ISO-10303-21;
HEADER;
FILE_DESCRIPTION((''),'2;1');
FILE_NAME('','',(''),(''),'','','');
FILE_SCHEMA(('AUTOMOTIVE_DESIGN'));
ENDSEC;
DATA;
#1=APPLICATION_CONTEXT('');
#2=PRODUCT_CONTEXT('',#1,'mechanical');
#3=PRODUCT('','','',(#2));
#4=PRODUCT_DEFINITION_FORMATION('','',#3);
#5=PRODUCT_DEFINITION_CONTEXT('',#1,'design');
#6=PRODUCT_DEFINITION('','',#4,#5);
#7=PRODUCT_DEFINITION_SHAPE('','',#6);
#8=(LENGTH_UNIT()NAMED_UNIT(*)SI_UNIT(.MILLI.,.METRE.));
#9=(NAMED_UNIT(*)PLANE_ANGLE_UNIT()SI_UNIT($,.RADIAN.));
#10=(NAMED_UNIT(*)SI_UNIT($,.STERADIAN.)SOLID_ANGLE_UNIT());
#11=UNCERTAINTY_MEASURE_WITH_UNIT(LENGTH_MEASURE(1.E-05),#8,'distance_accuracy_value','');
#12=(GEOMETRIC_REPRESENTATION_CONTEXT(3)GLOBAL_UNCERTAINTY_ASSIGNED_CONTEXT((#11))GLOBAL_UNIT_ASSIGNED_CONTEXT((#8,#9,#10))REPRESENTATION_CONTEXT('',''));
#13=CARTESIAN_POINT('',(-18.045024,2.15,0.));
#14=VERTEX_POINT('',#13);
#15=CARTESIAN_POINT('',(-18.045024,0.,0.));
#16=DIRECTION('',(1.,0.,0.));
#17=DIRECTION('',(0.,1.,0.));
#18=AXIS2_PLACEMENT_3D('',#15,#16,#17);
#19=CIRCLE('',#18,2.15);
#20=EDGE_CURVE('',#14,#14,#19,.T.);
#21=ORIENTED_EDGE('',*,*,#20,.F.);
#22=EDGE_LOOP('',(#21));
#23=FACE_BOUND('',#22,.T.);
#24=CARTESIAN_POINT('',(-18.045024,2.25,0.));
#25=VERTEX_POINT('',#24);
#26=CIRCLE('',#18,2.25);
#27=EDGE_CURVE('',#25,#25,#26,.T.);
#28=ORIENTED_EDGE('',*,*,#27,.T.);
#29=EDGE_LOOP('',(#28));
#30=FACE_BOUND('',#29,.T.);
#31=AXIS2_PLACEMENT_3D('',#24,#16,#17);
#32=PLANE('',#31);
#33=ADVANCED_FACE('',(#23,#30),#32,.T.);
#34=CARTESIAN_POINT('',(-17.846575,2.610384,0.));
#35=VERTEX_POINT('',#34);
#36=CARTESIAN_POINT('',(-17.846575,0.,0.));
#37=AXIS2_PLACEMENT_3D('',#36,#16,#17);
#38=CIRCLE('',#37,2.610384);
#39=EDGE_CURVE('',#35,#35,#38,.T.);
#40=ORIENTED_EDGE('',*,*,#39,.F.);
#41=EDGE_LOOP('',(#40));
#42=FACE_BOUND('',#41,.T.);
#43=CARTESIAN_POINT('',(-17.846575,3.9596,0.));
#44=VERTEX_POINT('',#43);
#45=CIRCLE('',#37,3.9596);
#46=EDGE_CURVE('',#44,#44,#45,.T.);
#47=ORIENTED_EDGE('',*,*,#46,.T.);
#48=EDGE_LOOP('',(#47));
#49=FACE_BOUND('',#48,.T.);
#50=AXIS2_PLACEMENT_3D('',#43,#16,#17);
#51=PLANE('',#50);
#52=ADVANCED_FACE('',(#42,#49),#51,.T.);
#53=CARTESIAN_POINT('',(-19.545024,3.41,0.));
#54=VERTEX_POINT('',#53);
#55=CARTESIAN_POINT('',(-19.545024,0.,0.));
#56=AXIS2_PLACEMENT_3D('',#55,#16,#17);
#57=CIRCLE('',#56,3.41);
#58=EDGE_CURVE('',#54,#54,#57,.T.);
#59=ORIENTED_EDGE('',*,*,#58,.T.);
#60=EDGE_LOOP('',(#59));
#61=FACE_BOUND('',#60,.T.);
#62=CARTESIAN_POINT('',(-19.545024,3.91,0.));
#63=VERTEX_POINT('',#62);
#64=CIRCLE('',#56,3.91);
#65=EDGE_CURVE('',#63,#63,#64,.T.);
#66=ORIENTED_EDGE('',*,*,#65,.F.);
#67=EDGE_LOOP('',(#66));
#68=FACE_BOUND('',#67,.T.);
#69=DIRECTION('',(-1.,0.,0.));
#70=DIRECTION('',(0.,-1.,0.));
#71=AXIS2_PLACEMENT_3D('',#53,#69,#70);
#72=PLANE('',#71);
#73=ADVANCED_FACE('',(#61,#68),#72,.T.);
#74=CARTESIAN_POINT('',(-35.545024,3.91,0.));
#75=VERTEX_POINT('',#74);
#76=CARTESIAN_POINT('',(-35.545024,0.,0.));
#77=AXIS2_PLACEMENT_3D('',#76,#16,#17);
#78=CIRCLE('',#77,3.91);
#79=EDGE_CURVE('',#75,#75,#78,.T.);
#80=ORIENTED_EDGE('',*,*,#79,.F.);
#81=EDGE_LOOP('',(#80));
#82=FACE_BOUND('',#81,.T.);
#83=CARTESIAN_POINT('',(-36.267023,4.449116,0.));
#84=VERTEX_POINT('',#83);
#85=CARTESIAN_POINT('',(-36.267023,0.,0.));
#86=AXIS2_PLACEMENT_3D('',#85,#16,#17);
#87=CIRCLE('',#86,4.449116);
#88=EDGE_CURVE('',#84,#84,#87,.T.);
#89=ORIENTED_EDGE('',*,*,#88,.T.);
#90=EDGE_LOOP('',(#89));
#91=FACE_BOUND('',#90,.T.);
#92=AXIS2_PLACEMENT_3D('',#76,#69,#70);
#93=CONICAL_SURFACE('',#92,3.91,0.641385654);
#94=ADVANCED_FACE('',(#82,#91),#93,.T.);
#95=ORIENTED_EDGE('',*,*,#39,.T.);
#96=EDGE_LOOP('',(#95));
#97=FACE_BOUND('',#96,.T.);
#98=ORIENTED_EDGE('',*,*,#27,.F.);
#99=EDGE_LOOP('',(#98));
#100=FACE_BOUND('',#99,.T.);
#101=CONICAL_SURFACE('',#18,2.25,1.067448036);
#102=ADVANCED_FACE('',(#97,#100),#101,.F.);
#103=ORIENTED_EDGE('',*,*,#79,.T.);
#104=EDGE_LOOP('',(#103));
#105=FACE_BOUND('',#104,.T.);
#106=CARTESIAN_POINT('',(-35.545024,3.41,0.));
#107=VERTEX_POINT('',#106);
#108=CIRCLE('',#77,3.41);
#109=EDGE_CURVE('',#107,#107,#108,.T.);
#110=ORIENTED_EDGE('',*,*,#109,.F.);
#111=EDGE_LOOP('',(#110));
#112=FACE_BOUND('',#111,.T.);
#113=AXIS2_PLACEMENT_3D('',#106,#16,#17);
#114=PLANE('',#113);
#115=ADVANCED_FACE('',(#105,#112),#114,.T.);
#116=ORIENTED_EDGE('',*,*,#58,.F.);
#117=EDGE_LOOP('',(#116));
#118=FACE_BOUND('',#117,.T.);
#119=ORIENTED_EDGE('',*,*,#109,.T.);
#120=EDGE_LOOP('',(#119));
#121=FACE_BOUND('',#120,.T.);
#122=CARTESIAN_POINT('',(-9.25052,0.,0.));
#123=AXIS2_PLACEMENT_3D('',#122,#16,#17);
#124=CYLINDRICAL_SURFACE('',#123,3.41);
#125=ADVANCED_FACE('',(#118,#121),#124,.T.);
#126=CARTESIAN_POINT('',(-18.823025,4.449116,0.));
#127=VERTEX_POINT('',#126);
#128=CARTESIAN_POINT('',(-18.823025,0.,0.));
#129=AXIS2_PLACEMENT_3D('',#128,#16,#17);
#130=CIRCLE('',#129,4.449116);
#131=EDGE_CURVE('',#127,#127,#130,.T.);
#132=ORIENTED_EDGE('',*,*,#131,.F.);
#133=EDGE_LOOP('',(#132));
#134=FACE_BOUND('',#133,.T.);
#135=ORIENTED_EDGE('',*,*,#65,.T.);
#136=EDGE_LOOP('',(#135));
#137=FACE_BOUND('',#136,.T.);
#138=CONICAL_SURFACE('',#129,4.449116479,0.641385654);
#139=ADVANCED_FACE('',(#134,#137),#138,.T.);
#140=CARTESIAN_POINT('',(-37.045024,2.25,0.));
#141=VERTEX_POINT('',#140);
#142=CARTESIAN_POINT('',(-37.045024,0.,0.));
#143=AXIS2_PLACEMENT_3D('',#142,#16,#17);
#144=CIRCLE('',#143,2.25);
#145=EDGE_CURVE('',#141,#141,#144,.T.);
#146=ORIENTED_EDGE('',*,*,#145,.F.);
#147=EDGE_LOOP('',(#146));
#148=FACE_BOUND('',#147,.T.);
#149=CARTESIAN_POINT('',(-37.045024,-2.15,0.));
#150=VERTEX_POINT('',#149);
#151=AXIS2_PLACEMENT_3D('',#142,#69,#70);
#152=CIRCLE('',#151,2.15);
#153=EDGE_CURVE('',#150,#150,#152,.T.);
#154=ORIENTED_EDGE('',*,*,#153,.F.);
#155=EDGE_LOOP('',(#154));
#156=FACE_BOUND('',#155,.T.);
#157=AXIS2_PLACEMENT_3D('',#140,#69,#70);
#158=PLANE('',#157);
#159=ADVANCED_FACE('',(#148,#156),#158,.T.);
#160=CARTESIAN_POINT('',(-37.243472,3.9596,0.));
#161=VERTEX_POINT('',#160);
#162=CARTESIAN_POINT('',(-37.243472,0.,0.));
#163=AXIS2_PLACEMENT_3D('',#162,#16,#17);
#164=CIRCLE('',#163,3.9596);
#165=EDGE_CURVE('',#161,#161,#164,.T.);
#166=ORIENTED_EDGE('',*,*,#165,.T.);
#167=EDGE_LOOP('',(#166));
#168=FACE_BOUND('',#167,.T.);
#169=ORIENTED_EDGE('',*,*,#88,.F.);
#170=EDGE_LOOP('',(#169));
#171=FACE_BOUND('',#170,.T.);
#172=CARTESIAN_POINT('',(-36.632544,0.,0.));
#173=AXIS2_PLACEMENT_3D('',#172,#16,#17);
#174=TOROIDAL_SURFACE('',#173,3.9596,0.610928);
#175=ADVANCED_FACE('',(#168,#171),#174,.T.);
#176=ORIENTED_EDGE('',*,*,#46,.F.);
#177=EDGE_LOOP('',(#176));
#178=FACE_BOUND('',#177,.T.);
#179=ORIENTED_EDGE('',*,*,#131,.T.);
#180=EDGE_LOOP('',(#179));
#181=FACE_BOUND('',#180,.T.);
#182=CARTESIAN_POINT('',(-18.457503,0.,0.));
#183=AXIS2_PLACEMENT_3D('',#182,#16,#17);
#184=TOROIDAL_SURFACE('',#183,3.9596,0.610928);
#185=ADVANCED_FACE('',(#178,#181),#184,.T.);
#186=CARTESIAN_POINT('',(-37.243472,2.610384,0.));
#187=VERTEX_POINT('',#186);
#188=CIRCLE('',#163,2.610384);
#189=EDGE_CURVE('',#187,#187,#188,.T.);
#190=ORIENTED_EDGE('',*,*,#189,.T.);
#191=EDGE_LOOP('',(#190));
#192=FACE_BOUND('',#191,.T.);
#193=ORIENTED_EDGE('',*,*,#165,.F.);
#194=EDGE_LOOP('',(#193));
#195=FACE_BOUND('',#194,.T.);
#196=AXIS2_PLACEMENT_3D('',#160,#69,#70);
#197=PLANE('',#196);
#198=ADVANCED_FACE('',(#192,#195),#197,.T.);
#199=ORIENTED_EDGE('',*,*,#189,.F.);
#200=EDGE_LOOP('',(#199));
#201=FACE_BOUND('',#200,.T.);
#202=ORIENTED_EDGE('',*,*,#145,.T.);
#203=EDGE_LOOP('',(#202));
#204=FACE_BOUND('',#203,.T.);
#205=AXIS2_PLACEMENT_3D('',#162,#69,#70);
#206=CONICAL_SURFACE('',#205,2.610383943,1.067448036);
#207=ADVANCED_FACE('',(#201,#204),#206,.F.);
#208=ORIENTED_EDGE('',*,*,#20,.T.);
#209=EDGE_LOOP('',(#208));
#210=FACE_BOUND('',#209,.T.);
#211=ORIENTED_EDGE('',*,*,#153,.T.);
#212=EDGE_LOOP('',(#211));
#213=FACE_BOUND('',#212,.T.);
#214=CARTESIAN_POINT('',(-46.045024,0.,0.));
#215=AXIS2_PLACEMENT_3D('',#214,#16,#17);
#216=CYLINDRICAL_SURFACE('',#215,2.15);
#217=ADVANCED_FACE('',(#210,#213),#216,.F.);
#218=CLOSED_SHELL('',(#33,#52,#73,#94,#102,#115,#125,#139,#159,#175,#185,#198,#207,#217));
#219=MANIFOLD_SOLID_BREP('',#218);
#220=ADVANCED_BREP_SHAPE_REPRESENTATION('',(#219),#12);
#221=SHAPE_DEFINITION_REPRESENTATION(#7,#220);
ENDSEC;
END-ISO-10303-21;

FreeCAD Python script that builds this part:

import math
import FreeCAD as App
import Part
import Sketcher
from FreeCAD import Vector

doc = App.newDocument("Part")
body = doc.addObject("PartDesign::Body", "Body")

# Sketch on XY plane
sketch1 = doc.addObject("Sketcher::SketchObject", "Sketch")
body.addObject(sketch1)
sketch1.AttachmentSupport = (doc.XY_Plane, [""])
sketch1.MapMode = "FlatFace"
sketch1.addGeometry(Part.LineSegment(Vector(-37.045024, 0, 0), Vector(-18.045024, 0, 0)), False)
sketch1.addGeometry(Part.LineSegment(Vector(-18.045024, 0, 0), Vector(-18.045024, 2.25, 0)), False)
sketch1.addGeometry(Part.LineSegment(Vector(-18.045024, 2.25, 0), Vector(-17.846575, 2.610384, 0)), False)
sketch1.addGeometry(Part.LineSegment(Vector(-17.846575, 2.610384, 0), Vector(-17.846575, 3.9596, 0)), False)
sketch1.addGeometry(Part.ArcOfCircle(Part.Circle(Vector(-18.457503, 3.9596, 0), Vector(0, 0, 1), 0.610928), math.radians(0), math.radians(126.748691)), False)
sketch1.addGeometry(Part.LineSegment(Vector(-18.823025, 4.449116, 0), Vector(-19.545024, 3.91, 0)), False)
sketch1.addGeometry(Part.LineSegment(Vector(-19.545024, 3.91, 0), Vector(-19.545024, 3.41, 0)), False)
sketch1.addGeometry(Part.LineSegment(Vector(-19.545024, 3.41, 0), Vector(-35.545024, 3.41, 0)), False)
sketch1.addGeometry(Part.LineSegment(Vector(-35.545024, 3.41, 0), Vector(-35.545024, 3.91, 0)), False)
sketch1.addGeometry(Part.LineSegment(Vector(-35.545024, 3.91, 0), Vector(-36.267023, 4.449116, 0)), False)
sketch1.addGeometry(Part.ArcOfCircle(Part.Circle(Vector(-36.632544, 3.9596, 0), Vector(0, 0, 1), 0.610928), math.radians(53.251309), math.radians(180)), False)
sketch1.addGeometry(Part.LineSegment(Vector(-37.243472, 3.9596, 0), Vector(-37.243472, 2.610384, 0)), False)
sketch1.addGeometry(Part.LineSegment(Vector(-37.243472, 2.610384, 0), Vector(-37.045024, 2.25, 0)), False)
sketch1.addGeometry(Part.LineSegment(Vector(-37.045024, 2.25, 0), Vector(-37.045024, 0, 0)), False)
sketch1.addConstraint(Sketcher.Constraint("Coincident", 0, 2, 1, 1))
sketch1.addConstraint(Sketcher.Constraint("Coincident", 1, 2, 2, 1))
sketch1.addConstraint(Sketcher.Constraint("Coincident", 2, 2, 3, 1))
sketch1.addConstraint(Sketcher.Constraint("Tangent", 3, 2, 4, 1))
sketch1.addConstraint(Sketcher.Constraint("Tangent", 4, 2, 5, 1))
sketch1.addConstraint(Sketcher.Constraint("Coincident", 5, 2, 6, 1))
sketch1.addConstraint(Sketcher.Constraint("Coincident", 6, 2, 7, 1))
sketch1.addConstraint(Sketcher.Constraint("Coincident", 7, 2, 8, 1))
sketch1.addConstraint(Sketcher.Constraint("Coincident", 8, 2, 9, 1))
sketch1.addConstraint(Sketcher.Constraint("Tangent", 9, 2, 10, 1))
sketch1.addConstraint(Sketcher.Constraint("Tangent", 10, 2, 11, 1))
sketch1.addConstraint(Sketcher.Constraint("Coincident", 11, 2, 12, 1))
sketch1.addConstraint(Sketcher.Constraint("Coincident", 12, 2, 13, 1))
sketch1.addConstraint(Sketcher.Constraint("Coincident", 13, 2, 0, 1))
sketch1.addConstraint(Sketcher.Constraint("Horizontal", 0))
sketch1.addConstraint(Sketcher.Constraint("Vertical", 1))
sketch1.addConstraint(Sketcher.Constraint("Vertical", 3))
sketch1.addConstraint(Sketcher.Constraint("Vertical", 6))
sketch1.addConstraint(Sketcher.Constraint("Horizontal", 7))
sketch1.addConstraint(Sketcher.Constraint("Vertical", 8))
sketch1.addConstraint(Sketcher.Constraint("Vertical", 11))
sketch1.addConstraint(Sketcher.Constraint("Vertical", 13))
sketch1.addConstraint(Sketcher.Constraint("Equal", 4, 10))
sketch1.addConstraint(Sketcher.Constraint("PointOnObject", 0, 2, -1))
sketch1.addConstraint(Sketcher.Constraint("Horizontal", 4, 3, 10, 3))
sketch1.addConstraint(Sketcher.Constraint("Horizontal", 5, 2, 8, 2))
sketch1.addConstraint(Sketcher.Constraint("Horizontal", 4, 2, 9, 2))
sketch1.addConstraint(Sketcher.Constraint("Horizontal", 2, 2, 11, 2))
sketch1.addConstraint(Sketcher.Constraint("Horizontal", 1, 2, 12, 2))
sketch1.addConstraint(Sketcher.Constraint("Equal", 2, 12))
sketch1.addConstraint(Sketcher.Constraint("DistanceX", 0, 1, 0, 2, 19.0))
sketch1.addConstraint(Sketcher.Constraint("DistanceX", 7, 2, 7, 1, 16.0))
sketch1.addConstraint(Sketcher.Constraint("DistanceY", 6, 2, 6, 1, 0.5))
sketch1.addConstraint(Sketcher.Constraint("DistanceY", 1, 1, 1, 2, 2.25))
sketch1.addConstraint(Sketcher.Constraint("DistanceY", -1, 1, 5, 2, 3.91))
sketch1.addConstraint(Sketcher.Constraint("Radius", 4, 0.610928))
sketch1.addConstraint(Sketcher.Constraint("DistanceX", 4, 2, 1, 2, 0.778001))
sketch1.addConstraint(Sketcher.Constraint("DistanceY", -1, 1, 4, 3, 3.9596))
sketch1.addConstraint(Sketcher.Constraint("Distance", 2, 0.41141))
sketch1.addConstraint(Sketcher.Constraint("DistanceX", 10, 2, -1, 1, 37.243472))
revolution = doc.addObject("PartDesign::Revolution", "Revolution")
body.addObject(revolution)
revolution.Profile = sketch1
revolution.ReferenceAxis = (sketch1, ["H_Axis"])
revolution.Angle = 360

# Sketch on YZ plane
sketch2 = doc.addObject("Sketcher::SketchObject", "Sketch001")
body.addObject(sketch2)
sketch2.AttachmentSupport = (doc.YZ_Plane, [""])
sketch2.MapMode = "FlatFace"
sketch2.AttachmentOffset = App.Placement(Vector(0, 0, -18.045024), App.Rotation())
sketch2.addGeometry(Part.Circle(Vector(0, 0, 0), Vector(0, 0, 1), 2.15), False)
sketch2.addConstraint(Sketcher.Constraint("Coincident", 0, 3, -1, 1))
sketch2.addConstraint(Sketcher.Constraint("Diameter", 0, 4.3))
pocket1 = doc.addObject("PartDesign::Pocket", "Pocket")
body.addObject(pocket1)
pocket1.Profile = sketch2
pocket1.Length = 28

doc.recompute()
